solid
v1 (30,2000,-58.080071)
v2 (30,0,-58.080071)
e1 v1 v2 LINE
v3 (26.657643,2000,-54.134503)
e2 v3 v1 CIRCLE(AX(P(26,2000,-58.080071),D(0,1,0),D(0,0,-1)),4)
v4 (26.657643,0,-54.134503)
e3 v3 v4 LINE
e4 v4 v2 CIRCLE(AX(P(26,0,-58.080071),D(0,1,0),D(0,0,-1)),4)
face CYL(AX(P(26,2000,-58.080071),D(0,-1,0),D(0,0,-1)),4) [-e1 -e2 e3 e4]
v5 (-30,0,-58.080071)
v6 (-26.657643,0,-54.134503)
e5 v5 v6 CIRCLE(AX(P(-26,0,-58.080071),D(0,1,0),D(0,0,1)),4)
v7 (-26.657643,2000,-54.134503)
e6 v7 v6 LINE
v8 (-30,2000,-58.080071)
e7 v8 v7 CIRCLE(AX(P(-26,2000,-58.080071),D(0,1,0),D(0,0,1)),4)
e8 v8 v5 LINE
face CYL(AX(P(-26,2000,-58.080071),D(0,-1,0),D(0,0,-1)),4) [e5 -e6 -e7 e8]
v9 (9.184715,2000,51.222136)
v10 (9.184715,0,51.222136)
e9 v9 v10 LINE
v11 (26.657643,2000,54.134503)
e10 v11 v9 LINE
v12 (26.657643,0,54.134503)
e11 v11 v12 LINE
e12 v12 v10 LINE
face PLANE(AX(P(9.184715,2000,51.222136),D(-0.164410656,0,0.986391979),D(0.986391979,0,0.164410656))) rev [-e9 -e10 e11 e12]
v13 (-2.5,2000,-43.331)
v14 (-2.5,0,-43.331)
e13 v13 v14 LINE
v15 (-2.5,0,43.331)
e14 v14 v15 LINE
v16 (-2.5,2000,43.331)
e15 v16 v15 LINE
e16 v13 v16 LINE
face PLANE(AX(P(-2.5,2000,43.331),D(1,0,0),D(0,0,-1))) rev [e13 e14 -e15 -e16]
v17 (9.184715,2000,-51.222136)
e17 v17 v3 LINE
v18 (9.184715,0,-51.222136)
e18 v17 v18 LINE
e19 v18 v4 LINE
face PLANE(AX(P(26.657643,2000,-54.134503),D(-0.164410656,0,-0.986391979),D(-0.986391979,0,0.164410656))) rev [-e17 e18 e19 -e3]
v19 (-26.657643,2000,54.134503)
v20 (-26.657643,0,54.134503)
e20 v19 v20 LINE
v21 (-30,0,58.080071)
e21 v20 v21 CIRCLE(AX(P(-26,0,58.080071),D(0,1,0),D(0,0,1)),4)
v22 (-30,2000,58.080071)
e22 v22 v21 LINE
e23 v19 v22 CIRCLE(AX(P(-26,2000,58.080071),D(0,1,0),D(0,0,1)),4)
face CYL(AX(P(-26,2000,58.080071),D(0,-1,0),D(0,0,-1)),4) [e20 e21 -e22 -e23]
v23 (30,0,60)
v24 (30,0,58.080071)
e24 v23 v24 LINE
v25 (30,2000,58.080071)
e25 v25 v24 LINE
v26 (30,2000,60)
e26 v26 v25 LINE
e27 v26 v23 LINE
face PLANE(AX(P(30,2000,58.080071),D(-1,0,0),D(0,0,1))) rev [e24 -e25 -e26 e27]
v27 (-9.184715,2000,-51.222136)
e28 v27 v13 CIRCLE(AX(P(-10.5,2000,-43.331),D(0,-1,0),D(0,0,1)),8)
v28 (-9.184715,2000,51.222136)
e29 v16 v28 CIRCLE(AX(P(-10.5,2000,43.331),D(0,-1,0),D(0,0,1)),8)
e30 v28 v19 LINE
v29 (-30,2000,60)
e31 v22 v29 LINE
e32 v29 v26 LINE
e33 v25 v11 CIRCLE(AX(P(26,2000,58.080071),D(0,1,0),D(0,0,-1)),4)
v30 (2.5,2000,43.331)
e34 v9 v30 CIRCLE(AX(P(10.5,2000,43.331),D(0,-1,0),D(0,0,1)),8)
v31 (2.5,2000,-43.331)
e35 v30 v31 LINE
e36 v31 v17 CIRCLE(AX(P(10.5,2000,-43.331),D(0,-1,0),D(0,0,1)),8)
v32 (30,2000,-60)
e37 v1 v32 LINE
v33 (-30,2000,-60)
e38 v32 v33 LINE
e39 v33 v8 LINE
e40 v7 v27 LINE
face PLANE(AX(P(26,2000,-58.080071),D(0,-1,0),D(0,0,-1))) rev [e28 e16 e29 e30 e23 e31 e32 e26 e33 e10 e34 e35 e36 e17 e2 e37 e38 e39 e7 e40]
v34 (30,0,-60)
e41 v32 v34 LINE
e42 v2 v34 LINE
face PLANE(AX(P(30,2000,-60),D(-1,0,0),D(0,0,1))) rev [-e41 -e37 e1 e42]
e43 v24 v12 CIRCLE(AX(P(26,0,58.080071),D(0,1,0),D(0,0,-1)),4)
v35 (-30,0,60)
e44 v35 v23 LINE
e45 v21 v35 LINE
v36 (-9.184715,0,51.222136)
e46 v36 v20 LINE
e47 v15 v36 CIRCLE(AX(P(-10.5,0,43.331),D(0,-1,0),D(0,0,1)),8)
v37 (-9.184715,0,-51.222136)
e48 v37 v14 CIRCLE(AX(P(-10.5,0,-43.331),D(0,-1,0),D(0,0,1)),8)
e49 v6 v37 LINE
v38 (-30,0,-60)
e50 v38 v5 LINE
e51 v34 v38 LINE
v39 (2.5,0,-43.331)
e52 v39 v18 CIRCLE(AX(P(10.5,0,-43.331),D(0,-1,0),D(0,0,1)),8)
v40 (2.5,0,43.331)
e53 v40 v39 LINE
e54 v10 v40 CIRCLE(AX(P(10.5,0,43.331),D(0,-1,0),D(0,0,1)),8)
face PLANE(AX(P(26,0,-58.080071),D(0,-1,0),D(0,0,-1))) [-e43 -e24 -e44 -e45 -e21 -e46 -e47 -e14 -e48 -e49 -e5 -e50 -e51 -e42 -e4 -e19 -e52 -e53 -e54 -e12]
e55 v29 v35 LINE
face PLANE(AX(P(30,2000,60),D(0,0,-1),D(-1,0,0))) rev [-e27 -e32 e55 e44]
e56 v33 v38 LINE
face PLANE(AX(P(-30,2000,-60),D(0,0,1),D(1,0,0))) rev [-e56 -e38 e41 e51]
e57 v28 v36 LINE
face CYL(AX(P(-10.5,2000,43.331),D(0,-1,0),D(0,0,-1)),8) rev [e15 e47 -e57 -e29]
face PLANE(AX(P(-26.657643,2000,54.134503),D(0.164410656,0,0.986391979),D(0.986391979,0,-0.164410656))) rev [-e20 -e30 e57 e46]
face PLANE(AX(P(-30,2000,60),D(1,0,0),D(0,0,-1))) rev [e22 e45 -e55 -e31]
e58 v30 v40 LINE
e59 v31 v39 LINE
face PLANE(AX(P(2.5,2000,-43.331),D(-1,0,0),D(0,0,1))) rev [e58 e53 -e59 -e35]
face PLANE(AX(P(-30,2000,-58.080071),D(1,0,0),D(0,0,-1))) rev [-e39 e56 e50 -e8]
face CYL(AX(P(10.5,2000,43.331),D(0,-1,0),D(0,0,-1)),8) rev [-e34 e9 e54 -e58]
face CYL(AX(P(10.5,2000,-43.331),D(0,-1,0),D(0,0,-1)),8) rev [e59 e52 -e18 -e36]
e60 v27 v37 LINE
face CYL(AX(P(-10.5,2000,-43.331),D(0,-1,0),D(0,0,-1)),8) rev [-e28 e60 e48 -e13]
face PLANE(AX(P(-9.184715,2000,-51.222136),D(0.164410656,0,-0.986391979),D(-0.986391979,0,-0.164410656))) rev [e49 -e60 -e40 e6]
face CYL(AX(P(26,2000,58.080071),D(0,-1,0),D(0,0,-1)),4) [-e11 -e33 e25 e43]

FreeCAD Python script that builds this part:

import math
import FreeCAD as App
import Part
import Sketcher

V = App.Vector
Q = App.Units.Quantity

doc = App.newDocument("Part")
body = doc.addObject("PartDesign::Body", "Body")

# Sketch on XZ plane
sketch1 = body.newObject("Sketcher::SketchObject", "Sketch")
sketch1.AttachmentSupport = (doc.getObject("XZ_Plane"), [""])
sketch1.MapMode = "FlatFace"
sketch1.addGeometry([
    Part.LineSegment(V(30, -58.1, 0), V(30, -60, 0)),  # 0
    Part.LineSegment(V(30, -60, 0), V(-30, -60, 0)),  # 1
    Part.LineSegment(V(-30, -60, 0), V(-30, -58.1, 0)),  # 2
    Part.ArcOfCircle(Part.Circle(V(-26, -58.1, 0), V(0, 0, 1), 4), math.radians(99), math.radians(180)),  # 3
    Part.LineSegment(V(-26.7, -54.1, 0), V(-9.2, -51.2, 0)),  # 4
    Part.ArcOfCircle(Part.Circle(V(-10.5, -43.3, 0), V(0, 0, 1), 8), math.radians(-81), math.radians(0)),  # 5
    Part.LineSegment(V(-2.5, -43.3, 0), V(-2.5, 43.3, 0)),  # 6
    Part.ArcOfCircle(Part.Circle(V(-10.5, 43.3, 0), V(0, 0, 1), 8), math.radians(0), math.radians(81)),  # 7
    Part.LineSegment(V(-9.2, 51.2, 0), V(-26.7, 54.1, 0)),  # 8
    Part.ArcOfCircle(Part.Circle(V(-26, 58.1, 0), V(0, 0, 1), 4), math.radians(180), math.radians(261)),  # 9
    Part.LineSegment(V(-30, 58.1, 0), V(-30, 60, 0)),  # 10
    Part.LineSegment(V(-30, 60, 0), V(30, 60, 0)),  # 11
    Part.LineSegment(V(30, 60, 0), V(30, 58.1, 0)),  # 12
    Part.ArcOfCircle(Part.Circle(V(26, 58.1, 0), V(0, 0, 1), 4), math.radians(-81), math.radians(0)),  # 13
    Part.LineSegment(V(26.7, 54.1, 0), V(9.2, 51.2, 0)),  # 14
    Part.ArcOfCircle(Part.Circle(V(10.5, 43.3, 0), V(0, 0, 1), 8), math.radians(99), math.radians(180)),  # 15
    Part.LineSegment(V(2.5, 43.3, 0), V(2.5, -43.3, 0)),  # 16
    Part.ArcOfCircle(Part.Circle(V(10.5, -43.3, 0), V(0, 0, 1), 8), math.radians(180), math.radians(261)),  # 17
    Part.LineSegment(V(9.2, -51.2, 0), V(26.7, -54.1, 0)),  # 18
    Part.ArcOfCircle(Part.Circle(V(26, -58.1, 0), V(0, 0, 1), 4), math.radians(0), math.radians(81)),  # 19
], False)
sketch1.addConstraint([
    Sketcher.Constraint("Coincident", 0, 2, 1, 1),
    Sketcher.Constraint("Coincident", 1, 2, 2, 1),
    Sketcher.Constraint("Tangent", 2, 2, 3, 2),
    Sketcher.Constraint("Tangent", 3, 1, 4, 1),
    Sketcher.Constraint("Tangent", 4, 2, 5, 1),
    Sketcher.Constraint("Tangent", 5, 2, 6, 1),
    Sketcher.Constraint("Tangent", 6, 2, 7, 1),
    Sketcher.Constraint("Tangent", 7, 2, 8, 1),
    Sketcher.Constraint("Tangent", 8, 2, 9, 2),
    Sketcher.Constraint("Tangent", 9, 1, 10, 1),
    Sketcher.Constraint("Coincident", 10, 2, 11, 1),
    Sketcher.Constraint("Coincident", 11, 2, 12, 1),
    Sketcher.Constraint("Tangent", 12, 2, 13, 2),
    Sketcher.Constraint("Tangent", 13, 1, 14, 1),
    Sketcher.Constraint("Tangent", 14, 2, 15, 1),
    Sketcher.Constraint("Tangent", 15, 2, 16, 1),
    Sketcher.Constraint("Tangent", 16, 2, 17, 1),
    Sketcher.Constraint("Tangent", 17, 2, 18, 1),
    Sketcher.Constraint("Tangent", 18, 2, 19, 2),
    Sketcher.Constraint("Tangent", 19, 1, 0, 1),
    Sketcher.Constraint("Vertical", 0),
    Sketcher.Constraint("Horizontal", 1),
    Sketcher.Constraint("Vertical", 2),
    Sketcher.Constraint("Vertical", 6),
    Sketcher.Constraint("Vertical", 10),
    Sketcher.Constraint("Horizontal", 11),
    Sketcher.Constraint("Vertical", 12),
    Sketcher.Constraint("Vertical", 16),
    Sketcher.Constraint("Equal", 5, 7),
    Sketcher.Constraint("Equal", 3, 9),
    Sketcher.Constraint("Equal", 9, 13),
    Sketcher.Constraint("Equal", 7, 15),
    Sketcher.Constraint("Equal", 15, 17),
    Sketcher.Constraint("Equal", 13, 19),
    Sketcher.Constraint("Symmetric", 3, 3, 13, 3, -1, 1),
    Sketcher.Constraint("Symmetric", 5, 3, 15, 3, -1, 1),
    Sketcher.Constraint("Symmetric", 9, 3, 19, 3, -1, 1),
    Sketcher.Constraint("Symmetric", 9, 3, 13, 3, -2),
    Sketcher.Constraint("Parallel", 8, 18),
    Sketcher.Constraint("Horizontal", 7, 3, 15, 3),
    Sketcher.Constraint("Equal", 2, 10),
    Sketcher.Constraint("Radius", 3, Q("4 mm")),
    Sketcher.Constraint("Radius", 5, Q("8 mm")),
    Sketcher.Constraint("DistanceX", 1, 2, 1, 1, Q("60 mm")),
    Sketcher.Constraint("DistanceY", 0, 2, -1, 1, Q("60 mm")),
    Sketcher.Constraint("DistanceX", 7, 3, 15, 3, Q("21 mm")),
    Sketcher.Constraint("DistanceY", 6, 1, 6, 2, Q("86.662 mm")),
    Sketcher.Constraint("DistanceY", 0, 2, 0, 1, Q("1.919929 mm")),
])
pad1 = body.newObject("PartDesign::Pad", "Pad")
pad1.Profile = sketch1
pad1.Length = 2000
pad1.Reversed = True

doc.recompute()
